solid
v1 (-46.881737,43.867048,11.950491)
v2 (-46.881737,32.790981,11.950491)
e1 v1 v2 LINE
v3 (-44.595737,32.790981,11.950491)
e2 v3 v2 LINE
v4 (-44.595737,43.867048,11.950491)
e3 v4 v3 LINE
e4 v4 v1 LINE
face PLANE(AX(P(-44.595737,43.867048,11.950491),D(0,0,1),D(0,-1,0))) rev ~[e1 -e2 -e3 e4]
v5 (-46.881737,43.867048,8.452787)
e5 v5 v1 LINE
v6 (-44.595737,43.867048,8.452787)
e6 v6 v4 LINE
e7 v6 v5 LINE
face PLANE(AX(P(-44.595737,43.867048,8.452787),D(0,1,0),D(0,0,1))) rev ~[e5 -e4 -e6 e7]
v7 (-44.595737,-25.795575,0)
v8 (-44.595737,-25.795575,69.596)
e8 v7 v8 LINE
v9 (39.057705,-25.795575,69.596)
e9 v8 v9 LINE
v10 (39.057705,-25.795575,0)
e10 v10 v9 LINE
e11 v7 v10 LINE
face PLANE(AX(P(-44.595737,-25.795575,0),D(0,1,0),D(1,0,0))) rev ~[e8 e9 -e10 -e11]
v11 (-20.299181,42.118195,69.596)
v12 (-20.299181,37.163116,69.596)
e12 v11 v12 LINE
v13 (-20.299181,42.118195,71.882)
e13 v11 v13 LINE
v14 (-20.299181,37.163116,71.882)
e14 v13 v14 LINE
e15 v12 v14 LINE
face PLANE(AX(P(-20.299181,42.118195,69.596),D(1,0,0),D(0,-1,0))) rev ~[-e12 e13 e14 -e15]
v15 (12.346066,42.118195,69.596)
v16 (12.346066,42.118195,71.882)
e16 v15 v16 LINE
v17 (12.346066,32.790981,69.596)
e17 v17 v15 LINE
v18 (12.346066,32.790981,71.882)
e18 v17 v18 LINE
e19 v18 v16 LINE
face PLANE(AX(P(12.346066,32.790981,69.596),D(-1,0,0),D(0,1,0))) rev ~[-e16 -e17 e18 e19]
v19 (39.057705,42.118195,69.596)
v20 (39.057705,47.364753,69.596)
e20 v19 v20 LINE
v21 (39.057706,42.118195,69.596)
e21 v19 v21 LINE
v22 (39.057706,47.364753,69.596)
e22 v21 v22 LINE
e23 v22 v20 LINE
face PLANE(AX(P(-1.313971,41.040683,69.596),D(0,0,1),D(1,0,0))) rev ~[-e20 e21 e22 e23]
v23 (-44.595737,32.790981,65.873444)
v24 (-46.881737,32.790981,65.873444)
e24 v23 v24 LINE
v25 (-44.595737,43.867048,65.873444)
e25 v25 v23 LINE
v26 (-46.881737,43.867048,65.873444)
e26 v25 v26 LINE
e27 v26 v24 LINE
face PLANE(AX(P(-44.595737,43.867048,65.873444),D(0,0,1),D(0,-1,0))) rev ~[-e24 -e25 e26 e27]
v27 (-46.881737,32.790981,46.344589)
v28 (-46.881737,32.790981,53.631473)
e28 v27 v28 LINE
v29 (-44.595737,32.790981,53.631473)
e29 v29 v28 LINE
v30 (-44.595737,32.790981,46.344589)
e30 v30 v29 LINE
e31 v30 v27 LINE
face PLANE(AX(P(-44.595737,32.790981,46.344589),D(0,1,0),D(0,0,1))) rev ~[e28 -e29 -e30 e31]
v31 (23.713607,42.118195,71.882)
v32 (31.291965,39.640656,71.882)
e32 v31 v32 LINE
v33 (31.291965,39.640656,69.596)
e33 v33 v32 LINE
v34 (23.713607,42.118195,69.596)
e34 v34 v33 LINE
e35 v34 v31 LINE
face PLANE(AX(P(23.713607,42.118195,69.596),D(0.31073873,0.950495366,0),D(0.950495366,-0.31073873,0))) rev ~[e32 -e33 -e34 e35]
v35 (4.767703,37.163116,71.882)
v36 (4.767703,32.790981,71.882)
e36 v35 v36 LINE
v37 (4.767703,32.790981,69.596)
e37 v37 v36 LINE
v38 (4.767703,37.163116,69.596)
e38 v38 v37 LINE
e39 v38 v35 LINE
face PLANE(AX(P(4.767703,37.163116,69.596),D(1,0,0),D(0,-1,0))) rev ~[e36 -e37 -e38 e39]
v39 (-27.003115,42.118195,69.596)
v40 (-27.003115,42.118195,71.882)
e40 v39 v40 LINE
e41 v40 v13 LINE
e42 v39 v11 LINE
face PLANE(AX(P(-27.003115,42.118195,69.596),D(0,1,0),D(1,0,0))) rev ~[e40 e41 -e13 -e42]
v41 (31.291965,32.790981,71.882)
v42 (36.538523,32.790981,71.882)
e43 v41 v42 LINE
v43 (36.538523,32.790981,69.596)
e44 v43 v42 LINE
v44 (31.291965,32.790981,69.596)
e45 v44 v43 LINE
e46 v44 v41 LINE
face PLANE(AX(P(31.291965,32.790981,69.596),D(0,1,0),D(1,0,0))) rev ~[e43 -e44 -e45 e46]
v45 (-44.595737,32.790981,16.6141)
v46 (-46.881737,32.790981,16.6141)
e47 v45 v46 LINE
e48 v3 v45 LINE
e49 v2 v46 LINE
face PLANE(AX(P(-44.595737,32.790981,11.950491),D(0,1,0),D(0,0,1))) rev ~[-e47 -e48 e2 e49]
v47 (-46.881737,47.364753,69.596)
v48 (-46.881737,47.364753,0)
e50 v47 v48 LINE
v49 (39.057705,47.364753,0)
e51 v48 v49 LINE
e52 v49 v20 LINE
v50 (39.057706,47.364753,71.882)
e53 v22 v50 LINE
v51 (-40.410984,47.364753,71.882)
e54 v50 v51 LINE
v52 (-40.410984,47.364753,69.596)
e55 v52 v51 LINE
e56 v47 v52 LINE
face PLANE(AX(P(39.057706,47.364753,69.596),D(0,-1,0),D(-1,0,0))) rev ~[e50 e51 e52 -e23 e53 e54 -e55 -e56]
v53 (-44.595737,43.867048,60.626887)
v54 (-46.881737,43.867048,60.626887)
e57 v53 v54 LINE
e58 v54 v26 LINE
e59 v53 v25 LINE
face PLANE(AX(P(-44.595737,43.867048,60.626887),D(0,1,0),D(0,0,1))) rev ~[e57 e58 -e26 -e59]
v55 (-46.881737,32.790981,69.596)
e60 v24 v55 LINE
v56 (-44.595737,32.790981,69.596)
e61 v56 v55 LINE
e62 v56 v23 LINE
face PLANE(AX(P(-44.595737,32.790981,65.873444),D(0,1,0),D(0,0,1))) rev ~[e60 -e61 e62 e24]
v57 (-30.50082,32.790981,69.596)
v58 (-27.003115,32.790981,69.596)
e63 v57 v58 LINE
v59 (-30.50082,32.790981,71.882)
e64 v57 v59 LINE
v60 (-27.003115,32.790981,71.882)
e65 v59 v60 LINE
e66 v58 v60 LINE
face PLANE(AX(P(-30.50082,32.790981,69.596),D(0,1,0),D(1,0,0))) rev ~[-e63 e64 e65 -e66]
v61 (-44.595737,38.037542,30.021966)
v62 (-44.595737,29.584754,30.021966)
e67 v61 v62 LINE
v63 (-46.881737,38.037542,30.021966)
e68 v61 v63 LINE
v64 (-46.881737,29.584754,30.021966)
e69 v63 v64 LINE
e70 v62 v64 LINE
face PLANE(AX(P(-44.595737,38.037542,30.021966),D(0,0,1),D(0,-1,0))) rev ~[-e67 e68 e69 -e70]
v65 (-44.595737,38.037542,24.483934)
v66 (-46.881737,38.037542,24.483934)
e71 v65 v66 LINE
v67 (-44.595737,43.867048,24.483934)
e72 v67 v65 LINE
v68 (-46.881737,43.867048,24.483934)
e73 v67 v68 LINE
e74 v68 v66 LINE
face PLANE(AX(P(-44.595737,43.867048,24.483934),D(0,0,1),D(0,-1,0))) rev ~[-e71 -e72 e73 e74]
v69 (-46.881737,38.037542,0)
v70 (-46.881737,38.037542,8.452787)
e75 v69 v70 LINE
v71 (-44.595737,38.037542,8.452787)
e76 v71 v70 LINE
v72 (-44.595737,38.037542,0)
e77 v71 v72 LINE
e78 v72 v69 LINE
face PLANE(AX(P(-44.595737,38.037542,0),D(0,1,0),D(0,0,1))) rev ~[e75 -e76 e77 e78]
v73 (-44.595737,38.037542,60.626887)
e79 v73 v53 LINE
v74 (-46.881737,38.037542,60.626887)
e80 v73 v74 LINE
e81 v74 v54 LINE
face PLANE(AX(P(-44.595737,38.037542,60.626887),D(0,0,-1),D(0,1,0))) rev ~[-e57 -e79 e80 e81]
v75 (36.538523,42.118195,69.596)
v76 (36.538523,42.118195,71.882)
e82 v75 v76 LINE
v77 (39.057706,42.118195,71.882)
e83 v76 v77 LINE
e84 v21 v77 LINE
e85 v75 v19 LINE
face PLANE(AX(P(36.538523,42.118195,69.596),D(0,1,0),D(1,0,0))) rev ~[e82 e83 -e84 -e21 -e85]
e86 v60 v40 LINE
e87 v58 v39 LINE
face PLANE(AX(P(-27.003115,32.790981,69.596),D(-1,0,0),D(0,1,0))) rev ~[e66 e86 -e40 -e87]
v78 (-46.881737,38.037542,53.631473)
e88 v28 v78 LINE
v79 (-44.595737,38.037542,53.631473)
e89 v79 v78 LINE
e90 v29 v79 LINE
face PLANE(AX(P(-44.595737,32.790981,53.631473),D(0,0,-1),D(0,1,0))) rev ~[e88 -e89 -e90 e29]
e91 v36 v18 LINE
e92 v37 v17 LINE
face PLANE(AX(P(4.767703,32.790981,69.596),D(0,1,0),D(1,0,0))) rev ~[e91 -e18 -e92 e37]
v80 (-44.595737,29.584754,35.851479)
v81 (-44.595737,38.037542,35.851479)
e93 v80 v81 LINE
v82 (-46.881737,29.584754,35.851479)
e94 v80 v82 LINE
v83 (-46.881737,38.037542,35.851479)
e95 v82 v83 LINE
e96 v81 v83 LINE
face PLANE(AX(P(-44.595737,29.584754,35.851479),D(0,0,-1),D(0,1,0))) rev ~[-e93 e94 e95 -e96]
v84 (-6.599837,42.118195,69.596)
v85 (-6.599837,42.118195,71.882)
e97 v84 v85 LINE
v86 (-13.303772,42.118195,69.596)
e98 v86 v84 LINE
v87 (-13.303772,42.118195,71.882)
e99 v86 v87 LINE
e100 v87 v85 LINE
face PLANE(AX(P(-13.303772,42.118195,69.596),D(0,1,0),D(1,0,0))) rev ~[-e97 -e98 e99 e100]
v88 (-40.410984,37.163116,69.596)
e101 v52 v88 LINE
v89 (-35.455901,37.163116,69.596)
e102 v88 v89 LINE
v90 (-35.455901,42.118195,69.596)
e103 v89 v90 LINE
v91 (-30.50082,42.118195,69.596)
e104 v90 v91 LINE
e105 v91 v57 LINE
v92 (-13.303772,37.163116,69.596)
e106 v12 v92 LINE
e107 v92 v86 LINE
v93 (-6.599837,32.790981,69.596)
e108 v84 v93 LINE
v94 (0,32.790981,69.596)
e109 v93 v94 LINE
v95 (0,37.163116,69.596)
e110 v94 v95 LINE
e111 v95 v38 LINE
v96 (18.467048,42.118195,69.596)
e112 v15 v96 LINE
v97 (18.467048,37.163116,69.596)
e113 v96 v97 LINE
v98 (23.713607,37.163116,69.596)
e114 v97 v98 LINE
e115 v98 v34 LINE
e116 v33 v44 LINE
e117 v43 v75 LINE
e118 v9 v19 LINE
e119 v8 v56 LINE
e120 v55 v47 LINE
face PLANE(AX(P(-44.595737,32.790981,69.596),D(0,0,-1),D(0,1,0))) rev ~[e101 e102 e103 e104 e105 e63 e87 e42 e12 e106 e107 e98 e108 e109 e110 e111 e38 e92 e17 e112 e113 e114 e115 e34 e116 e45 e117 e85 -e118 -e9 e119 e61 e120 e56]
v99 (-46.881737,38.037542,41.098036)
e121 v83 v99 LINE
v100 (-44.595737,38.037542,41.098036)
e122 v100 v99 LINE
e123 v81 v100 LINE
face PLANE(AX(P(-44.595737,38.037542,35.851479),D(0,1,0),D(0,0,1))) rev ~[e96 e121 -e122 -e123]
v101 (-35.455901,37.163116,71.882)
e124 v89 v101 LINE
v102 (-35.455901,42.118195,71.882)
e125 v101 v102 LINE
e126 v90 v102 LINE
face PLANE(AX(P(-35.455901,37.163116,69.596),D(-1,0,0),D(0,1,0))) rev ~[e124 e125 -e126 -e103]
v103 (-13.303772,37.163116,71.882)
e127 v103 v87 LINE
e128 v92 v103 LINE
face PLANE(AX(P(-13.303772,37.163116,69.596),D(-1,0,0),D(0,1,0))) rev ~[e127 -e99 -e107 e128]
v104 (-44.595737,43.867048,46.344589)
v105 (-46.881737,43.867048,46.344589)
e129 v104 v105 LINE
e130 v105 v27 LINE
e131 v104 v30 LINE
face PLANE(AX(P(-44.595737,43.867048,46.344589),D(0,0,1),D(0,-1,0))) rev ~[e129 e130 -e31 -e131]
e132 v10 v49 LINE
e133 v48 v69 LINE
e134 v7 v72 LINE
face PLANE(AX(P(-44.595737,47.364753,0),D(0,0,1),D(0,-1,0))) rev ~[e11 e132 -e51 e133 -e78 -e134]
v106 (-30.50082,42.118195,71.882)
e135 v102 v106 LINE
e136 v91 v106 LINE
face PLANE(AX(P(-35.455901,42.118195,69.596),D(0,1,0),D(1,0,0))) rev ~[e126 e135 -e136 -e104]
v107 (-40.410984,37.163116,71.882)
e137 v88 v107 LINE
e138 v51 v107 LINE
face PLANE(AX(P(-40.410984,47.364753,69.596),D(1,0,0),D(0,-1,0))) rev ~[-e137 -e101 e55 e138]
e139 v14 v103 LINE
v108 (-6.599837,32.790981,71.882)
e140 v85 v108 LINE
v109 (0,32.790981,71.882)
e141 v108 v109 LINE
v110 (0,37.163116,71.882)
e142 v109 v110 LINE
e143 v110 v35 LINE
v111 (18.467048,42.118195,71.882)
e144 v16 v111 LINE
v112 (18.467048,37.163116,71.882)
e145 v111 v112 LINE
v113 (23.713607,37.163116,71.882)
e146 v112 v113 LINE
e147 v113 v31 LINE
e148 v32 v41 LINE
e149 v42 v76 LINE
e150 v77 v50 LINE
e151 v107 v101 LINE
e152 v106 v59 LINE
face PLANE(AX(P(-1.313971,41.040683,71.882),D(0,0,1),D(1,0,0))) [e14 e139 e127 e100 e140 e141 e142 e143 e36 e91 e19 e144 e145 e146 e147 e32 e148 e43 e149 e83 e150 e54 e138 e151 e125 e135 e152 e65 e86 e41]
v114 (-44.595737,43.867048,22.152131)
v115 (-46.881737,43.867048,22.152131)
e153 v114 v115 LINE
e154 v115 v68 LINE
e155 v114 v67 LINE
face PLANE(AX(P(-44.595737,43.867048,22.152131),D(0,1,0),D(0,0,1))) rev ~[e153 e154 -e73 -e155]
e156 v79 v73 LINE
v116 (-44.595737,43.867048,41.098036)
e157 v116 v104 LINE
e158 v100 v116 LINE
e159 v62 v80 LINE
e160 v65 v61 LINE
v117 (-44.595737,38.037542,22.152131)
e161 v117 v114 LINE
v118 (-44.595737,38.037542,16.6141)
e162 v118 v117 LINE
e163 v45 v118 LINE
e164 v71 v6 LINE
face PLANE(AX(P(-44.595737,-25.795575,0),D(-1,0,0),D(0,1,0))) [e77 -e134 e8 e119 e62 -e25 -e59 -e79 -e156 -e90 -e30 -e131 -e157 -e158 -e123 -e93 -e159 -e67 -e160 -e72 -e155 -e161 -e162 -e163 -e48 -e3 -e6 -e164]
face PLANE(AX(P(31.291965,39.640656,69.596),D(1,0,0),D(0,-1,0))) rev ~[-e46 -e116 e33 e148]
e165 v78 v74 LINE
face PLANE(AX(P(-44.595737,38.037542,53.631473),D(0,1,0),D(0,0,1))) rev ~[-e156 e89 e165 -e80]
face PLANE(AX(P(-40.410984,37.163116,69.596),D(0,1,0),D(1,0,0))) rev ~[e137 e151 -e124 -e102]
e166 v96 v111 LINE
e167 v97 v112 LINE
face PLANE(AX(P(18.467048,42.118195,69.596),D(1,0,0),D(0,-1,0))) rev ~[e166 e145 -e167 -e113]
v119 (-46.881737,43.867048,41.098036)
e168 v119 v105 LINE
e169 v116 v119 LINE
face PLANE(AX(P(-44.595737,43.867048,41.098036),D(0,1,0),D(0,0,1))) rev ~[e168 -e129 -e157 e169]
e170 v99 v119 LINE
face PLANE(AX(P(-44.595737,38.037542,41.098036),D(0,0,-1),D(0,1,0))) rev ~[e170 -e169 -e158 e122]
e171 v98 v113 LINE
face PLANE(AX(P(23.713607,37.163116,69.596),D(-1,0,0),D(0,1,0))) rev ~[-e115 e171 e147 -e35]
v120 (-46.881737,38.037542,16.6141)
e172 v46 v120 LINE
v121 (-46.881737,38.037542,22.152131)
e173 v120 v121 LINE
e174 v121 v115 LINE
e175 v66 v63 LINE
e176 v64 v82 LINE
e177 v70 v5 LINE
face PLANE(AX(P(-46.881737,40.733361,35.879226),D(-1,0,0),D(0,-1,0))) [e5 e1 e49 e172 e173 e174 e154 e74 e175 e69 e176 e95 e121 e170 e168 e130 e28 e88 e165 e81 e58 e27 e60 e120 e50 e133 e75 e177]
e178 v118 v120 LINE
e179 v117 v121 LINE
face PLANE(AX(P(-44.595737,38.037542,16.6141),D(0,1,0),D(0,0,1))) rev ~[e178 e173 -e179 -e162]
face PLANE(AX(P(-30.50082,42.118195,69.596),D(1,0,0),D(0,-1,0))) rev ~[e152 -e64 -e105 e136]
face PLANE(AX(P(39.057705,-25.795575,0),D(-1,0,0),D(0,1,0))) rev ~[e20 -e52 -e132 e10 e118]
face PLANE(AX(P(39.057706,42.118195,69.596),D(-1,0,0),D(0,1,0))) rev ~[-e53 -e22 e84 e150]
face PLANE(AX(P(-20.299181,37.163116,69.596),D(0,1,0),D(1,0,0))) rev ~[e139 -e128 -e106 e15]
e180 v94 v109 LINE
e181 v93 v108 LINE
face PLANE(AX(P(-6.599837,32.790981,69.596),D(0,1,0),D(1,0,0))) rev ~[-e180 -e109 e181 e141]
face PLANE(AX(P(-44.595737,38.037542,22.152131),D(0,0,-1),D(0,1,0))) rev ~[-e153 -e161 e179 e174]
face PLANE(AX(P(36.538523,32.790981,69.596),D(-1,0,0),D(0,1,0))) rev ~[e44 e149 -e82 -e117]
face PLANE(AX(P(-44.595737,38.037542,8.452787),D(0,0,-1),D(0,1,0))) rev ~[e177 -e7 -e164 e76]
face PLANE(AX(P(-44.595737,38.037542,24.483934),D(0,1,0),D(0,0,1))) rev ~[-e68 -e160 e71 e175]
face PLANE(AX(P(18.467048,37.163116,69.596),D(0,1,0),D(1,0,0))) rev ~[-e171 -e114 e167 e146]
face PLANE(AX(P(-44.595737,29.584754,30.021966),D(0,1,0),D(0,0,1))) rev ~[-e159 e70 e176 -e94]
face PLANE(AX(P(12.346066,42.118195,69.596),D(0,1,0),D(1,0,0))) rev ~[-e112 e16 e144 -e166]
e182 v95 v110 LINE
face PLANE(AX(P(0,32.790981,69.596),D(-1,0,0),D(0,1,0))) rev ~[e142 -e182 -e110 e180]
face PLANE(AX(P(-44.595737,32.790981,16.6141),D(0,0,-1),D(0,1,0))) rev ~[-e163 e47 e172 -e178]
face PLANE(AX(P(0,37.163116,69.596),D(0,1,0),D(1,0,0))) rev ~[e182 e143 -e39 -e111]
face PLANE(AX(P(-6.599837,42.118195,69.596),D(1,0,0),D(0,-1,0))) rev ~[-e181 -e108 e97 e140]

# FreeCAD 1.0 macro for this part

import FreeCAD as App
import Part
import Sketcher
Q = App.Units.Quantity


def add_polygon(sketch, points):
    """Adds a closed chain of lines whose ends are joined by coincident constraints."""
    first, n = sketch.GeometryCount, len(points)
    for a, b in zip(points, points[1:] + points[:1]):
        sketch.addGeometry(Part.LineSegment(App.Vector(*a, 0), App.Vector(*b, 0)), False)
    for i in range(n):
        sketch.addConstraint(Sketcher.Constraint("Coincident", first + i, 2, first + (i + 1) % n, 1))

doc = App.newDocument("Part")
body = doc.addObject("PartDesign::Body", "Body")

# Sketch on XY plane
sketch1 = doc.addObject("Sketcher::SketchObject", "Sketch")
body.addObject(sketch1)
sketch1.AttachmentSupport = (doc.XY_Plane, [""])
sketch1.MapMode = "FlatFace"
add_polygon(sketch1, [(-44.595737, 47.364753), (-44.595737, -25.795575), (39.057705, -25.795575), (39.057705, 47.364753)])  # lines 0-3
sketch1.addConstraint([
    Sketcher.Constraint("Vertical", 0),
    Sketcher.Constraint("Horizontal", 1),
    Sketcher.Constraint("Vertical", 2),
    Sketcher.Constraint("Horizontal", 3),
    Sketcher.Constraint("DistanceX", 1, 1, 1, 2, 83.653443),
    Sketcher.Constraint("DistanceY", 0, 2, 0, 1, 73.160328),
    Sketcher.Constraint("DistanceX", 0, 2, -1, 1, 44.595737),
    Sketcher.Constraint("DistanceY", 0, 2, -1, 1, 25.795575),
])
pad1 = doc.addObject("PartDesign::Pad", "Pad")
body.addObject(pad1)
pad1.Profile = sketch1
pad1.Length = Q("2.74 in")

# Sketch on YZ plane
sketch2 = doc.addObject("Sketcher::SketchObject", "Sketch001")
body.addObject(sketch2)
sketch2.AttachmentSupport = (doc.YZ_Plane, [""])
sketch2.MapMode = "FlatFace"
sketch2.AttachmentOffset = App.Placement(App.Vector(0, 0, -44.595737), App.Rotation())
add_polygon(sketch2, [(47.364753, 0), (38.037542, 0), (38.037542, 8.452787), (43.867048, 8.452787), (43.867048, 11.950491), (32.790981, 11.950491), (32.790981, 16.6141), (38.037542, 16.6141), (38.037542, 22.152131), (43.867048, 22.152131), (43.867048, 24.483934), (38.037542, 24.483934), (38.037542, 30.021966), (29.584754, 30.021966), (29.584754, 35.851479), (38.037542, 35.851479), (38.037542, 41.098036), (43.867048, 41.098036), (43.867048, 46.344589), (32.790981, 46.344589), (32.790981, 53.631473), (38.037542, 53.631473), (38.037542, 60.626887), (43.867048, 60.626887), (43.867048, 65.873444), (32.790981, 65.873444), (32.790981, 69.596), (47.364753, 69.596)])  # lines 0-27
sketch2.addConstraint([
    Sketcher.Constraint("Horizontal", 0),
    Sketcher.Constraint("Vertical", 1),
    Sketcher.Constraint("Horizontal", 2),
    Sketcher.Constraint("Vertical", 3),
    Sketcher.Constraint("Horizontal", 4),
    Sketcher.Constraint("Vertical", 5),
    Sketcher.Constraint("Horizontal", 6),
    Sketcher.Constraint("Vertical", 7),
    Sketcher.Constraint("Horizontal", 8),
    Sketcher.Constraint("Vertical", 9),
    Sketcher.Constraint("Horizontal", 10),
    Sketcher.Constraint("Vertical", 11),
    Sketcher.Constraint("Horizontal", 12),
    Sketcher.Constraint("Vertical", 13),
    Sketcher.Constraint("Horizontal", 14),
    Sketcher.Constraint("Vertical", 15),
    Sketcher.Constraint("Horizontal", 16),
    Sketcher.Constraint("Vertical", 17),
    Sketcher.Constraint("Horizontal", 18),
    Sketcher.Constraint("Vertical", 19),
    Sketcher.Constraint("Horizontal", 20),
    Sketcher.Constraint("Vertical", 21),
    Sketcher.Constraint("Horizontal", 22),
    Sketcher.Constraint("Vertical", 23),
    Sketcher.Constraint("Horizontal", 24),
    Sketcher.Constraint("Vertical", 25),
    Sketcher.Constraint("Horizontal", 26),
    Sketcher.Constraint("Vertical", 27),
    Sketcher.Constraint("PointOnObject", 0, 2, -1),
    Sketcher.Constraint("Vertical", 1, 2, 6, 2),
    Sketcher.Constraint("Vertical", 3, 2, 8, 2),
    Sketcher.Constraint("Vertical", 7, 2, 10, 2),
    Sketcher.Constraint("Vertical", 11, 2, 14, 2),
    Sketcher.Constraint("Vertical", 9, 2, 16, 2),
    Sketcher.Constraint("Vertical", 5, 2, 18, 2),
    Sketcher.Constraint("Vertical", 15, 2, 20, 2),
    Sketcher.Constraint("Vertical", 17, 2, 22, 2),
    Sketcher.Constraint("Vertical", 19, 2, 24, 2),
    Sketcher.Constraint("Equal", 14, 1),
    Sketcher.Constraint("Equal", 7, 11),
    Sketcher.Constraint("Equal", 15, 23),
    Sketcher.Constraint("DistanceY", 27, 2, 27, 1, Q("2.74 in")),
    Sketcher.Constraint("DistanceX", 0, 2, 0, 1, 9.327211),
    Sketcher.Constraint("DistanceX", 6, 1, 6, 2, 5.246561),
    Sketcher.Constraint("DistanceX", 12, 2, 12, 1, 8.452788),
    Sketcher.Constraint("DistanceY", 5, 1, 5, 2, 4.663609),
    Sketcher.Constraint("DistanceY", 7, 1, 7, 2, 5.538031),
    Sketcher.Constraint("DistanceY", -1, 1, 5, 2, 16.6141),
    Sketcher.Constraint("DistanceY", 10, 2, 15, 2, 16.614102),
    Sketcher.Constraint("DistanceY", 18, 2, 21, 2, 14.282298),
    Sketcher.Constraint("DistanceX", 2, 1, 2, 2, 5.829506),
    Sketcher.Constraint("DistanceY", 9, 1, 9, 2, 2.331803),
    Sketcher.Constraint("DistanceY", 13, 1, 13, 2, 5.829513),
    Sketcher.Constraint("DistanceY", 17, 1, 17, 2, 5.246553),
    Sketcher.Constraint("DistanceY", 19, 1, 19, 2, 7.286884),
    Sketcher.Constraint("DistanceX", -1, 1, 4, 2, 32.790981),
])
pad2 = doc.addObject("PartDesign::Pad", "Pad001")
body.addObject(pad2)
pad2.Profile = sketch2
pad2.Length = Q("0.09 in")
pad2.Reversed = True

# Sketch on XY plane
sketch3 = doc.addObject("Sketcher::SketchObject", "Sketch002")
body.addObject(sketch3)
sketch3.AttachmentSupport = (doc.XY_Plane, [""])
sketch3.MapMode = "FlatFace"
sketch3.AttachmentOffset = App.Placement(App.Vector(0, 0, 2.74 * 25.4), App.Rotation())
add_polygon(sketch3, [(39.057706, 47.364753), (-40.410984, 47.364753), (-40.410984, 37.163116), (-35.455901, 37.163116), (-35.455901, 42.118195), (-30.50082, 42.118195), (-30.50082, 32.790981), (-27.003115, 32.790981), (-27.003115, 42.118195), (-20.299181, 42.118195), (-20.299181, 37.163116), (-13.303772, 37.163116), (-13.303772, 42.118195), (-6.599837, 42.118195), (-6.599837, 32.790981), (0, 32.790981), (0, 37.163116), (4.767703, 37.163116), (4.767703, 32.790981), (12.346066, 32.790981), (12.346066, 42.118195), (18.467048, 42.118195), (18.467048, 37.163116), (23.713607, 37.163116), (23.713607, 42.118195), (31.291965, 39.640656), (31.291965, 32.790981), (36.538523, 32.790981), (36.538523, 42.118195), (39.057706, 42.118195)])  # lines 0-29
sketch3.addConstraint([
    Sketcher.Constraint("Horizontal", 0),
    Sketcher.Constraint("Vertical", 1),
    Sketcher.Constraint("Horizontal", 2),
    Sketcher.Constraint("Vertical", 3),
    Sketcher.Constraint("Horizontal", 4),
    Sketcher.Constraint("Vertical", 5),
    Sketcher.Constraint("Horizontal", 6),
    Sketcher.Constraint("Vertical", 7),
    Sketcher.Constraint("Horizontal", 8),
    Sketcher.Constraint("Vertical", 9),
    Sketcher.Constraint("Horizontal", 10),
    Sketcher.Constraint("Vertical", 11),
    Sketcher.Constraint("Horizontal", 12),
    Sketcher.Constraint("Vertical", 13),
    Sketcher.Constraint("Horizontal", 14),
    Sketcher.Constraint("Vertical", 15),
    Sketcher.Constraint("Horizontal", 16),
    Sketcher.Constraint("Vertical", 17),
    Sketcher.Constraint("Horizontal", 18),
    Sketcher.Constraint("Vertical", 19),
    Sketcher.Constraint("Horizontal", 20),
    Sketcher.Constraint("Vertical", 21),
    Sketcher.Constraint("Horizontal", 22),
    Sketcher.Constraint("Vertical", 23),
    Sketcher.Constraint("Vertical", 25),
    Sketcher.Constraint("Horizontal", 26),
    Sketcher.Constraint("Vertical", 27),
    Sketcher.Constraint("Horizontal", 28),
    Sketcher.Constraint("Vertical", 29),
    Sketcher.Constraint("PointOnObject", 14, 2, -2),
    Sketcher.Constraint("Horizontal", 4, 2, 7, 2),
    Sketcher.Constraint("Horizontal", 2, 2, 9, 2),
    Sketcher.Constraint("Horizontal", 8, 2, 11, 2),
    Sketcher.Constraint("Horizontal", 6, 2, 13, 2),
    Sketcher.Constraint("Horizontal", 10, 2, 15, 2),
    Sketcher.Constraint("Horizontal", 14, 2, 17, 2),
    Sketcher.Constraint("Horizontal", 12, 2, 19, 2),
    Sketcher.Constraint("Horizontal", 16, 2, 21, 2),
    Sketcher.Constraint("Horizontal", 20, 2, 23, 2),
    Sketcher.Constraint("Horizontal", 18, 2, 25, 2),
    Sketcher.Constraint("Horizontal", 23, 2, 27, 2),
    Sketcher.Constraint("Equal", 8, 12),
    Sketcher.Constraint("Equal", 22, 26),
    Sketcher.Constraint("Equal", 4, 3),
    Sketcher.Constraint("Equal", 26, 29),
    Sketcher.Constraint("Distance", 24, Q("0.3139001 in")),
    Sketcher.Constraint("DistanceX", 0, 2, 0, 1, 79.46869),
    Sketcher.Constraint("DistanceX", 4, 1, 4, 2, 4.955081),
    Sketcher.Constraint("DistanceX", 10, 1, 10, 2, 6.995409),
    Sketcher.Constraint("DistanceX", 20, 1, 20, 2, 6.120982),
    Sketcher.Constraint("DistanceX", 22, 1, 22, 2, 5.246559),
    Sketcher.Constraint("DistanceX", 2, 2, -1, 1, 35.455901),
    Sketcher.Constraint("DistanceX", 19, 2, 24, 2, 18.945899),
    Sketcher.Constraint("DistanceX", 23, 2, 28, 2, 15.344099),
    Sketcher.Constraint("DistanceX", 2, 1, 2, 2, 4.955083),
    Sketcher.Constraint("DistanceX", 6, 1, 6, 2, 3.497705),
    Sketcher.Constraint("DistanceX", 8, 1, 8, 2, 6.703934),
    Sketcher.Constraint("DistanceX", 16, 1, 16, 2, 4.767703),
    Sketcher.Constraint("DistanceY", 5, 2, 5, 1, 9.327214),
    Sketcher.Constraint("DistanceY", -1, 1, 5, 2, 32.790981),
])
pad3 = doc.addObject("PartDesign::Pad", "Pad002")
body.addObject(pad3)
pad3.Profile = sketch3
pad3.Length = Q("0.09 in")

doc.recompute()
